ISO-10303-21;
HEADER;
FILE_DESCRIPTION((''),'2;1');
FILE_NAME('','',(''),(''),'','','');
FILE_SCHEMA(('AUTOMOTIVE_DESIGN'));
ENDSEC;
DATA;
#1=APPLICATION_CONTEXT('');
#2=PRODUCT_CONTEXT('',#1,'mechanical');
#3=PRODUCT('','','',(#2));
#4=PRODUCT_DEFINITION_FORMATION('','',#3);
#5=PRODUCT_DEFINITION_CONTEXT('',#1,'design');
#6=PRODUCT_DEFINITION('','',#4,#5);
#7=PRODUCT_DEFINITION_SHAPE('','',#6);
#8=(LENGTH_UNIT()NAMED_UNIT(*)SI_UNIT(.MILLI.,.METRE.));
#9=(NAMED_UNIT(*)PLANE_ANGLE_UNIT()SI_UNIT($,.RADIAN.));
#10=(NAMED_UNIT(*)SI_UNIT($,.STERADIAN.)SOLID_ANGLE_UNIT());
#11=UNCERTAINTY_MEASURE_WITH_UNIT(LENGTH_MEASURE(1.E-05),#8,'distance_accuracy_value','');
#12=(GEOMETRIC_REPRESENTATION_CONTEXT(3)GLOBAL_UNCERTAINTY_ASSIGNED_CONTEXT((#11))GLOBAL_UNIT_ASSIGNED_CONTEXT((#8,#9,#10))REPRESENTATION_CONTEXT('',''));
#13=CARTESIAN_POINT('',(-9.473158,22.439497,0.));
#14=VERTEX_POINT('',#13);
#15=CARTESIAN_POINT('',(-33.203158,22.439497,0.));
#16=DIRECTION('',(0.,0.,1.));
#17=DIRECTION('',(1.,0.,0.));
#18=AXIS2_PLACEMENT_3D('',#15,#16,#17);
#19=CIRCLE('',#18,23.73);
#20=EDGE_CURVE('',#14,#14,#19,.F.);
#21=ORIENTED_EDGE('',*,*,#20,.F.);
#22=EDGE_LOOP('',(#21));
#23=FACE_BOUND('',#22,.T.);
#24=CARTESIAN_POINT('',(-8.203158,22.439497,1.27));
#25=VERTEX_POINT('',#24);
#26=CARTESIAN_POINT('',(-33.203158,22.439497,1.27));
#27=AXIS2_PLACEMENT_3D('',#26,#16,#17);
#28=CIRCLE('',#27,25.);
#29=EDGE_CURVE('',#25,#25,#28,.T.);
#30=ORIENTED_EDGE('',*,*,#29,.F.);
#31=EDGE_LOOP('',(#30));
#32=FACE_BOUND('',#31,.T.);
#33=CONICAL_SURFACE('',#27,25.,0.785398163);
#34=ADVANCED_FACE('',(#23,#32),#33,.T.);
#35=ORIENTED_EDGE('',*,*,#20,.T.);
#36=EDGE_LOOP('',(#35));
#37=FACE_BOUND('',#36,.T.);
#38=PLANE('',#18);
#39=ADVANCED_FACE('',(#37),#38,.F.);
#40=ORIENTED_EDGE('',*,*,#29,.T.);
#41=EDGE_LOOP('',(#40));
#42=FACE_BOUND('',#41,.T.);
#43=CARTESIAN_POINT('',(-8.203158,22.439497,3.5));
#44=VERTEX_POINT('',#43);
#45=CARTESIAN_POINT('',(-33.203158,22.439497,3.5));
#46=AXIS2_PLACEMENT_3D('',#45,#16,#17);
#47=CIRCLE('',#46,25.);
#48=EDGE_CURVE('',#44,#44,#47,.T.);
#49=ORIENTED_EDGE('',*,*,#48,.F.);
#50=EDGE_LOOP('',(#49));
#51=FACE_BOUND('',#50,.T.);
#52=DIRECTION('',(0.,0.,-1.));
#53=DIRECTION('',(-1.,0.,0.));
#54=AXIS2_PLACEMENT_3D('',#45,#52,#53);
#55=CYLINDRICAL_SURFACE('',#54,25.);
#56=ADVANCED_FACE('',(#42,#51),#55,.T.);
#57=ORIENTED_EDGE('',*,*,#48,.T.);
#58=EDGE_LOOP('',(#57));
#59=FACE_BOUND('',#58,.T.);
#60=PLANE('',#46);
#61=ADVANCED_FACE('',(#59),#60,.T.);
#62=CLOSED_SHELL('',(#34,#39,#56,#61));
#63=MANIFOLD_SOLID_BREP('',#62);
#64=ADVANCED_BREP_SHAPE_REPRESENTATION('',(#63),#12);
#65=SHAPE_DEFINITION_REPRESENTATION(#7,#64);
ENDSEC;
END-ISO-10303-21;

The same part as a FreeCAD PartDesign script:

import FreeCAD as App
import Part
import Sketcher

V = App.Vector
Q = App.Units.Quantity


def edges_at(feature, points):
    """Names of the edges that pass closest to the given points."""
    edges = feature.Shape.Edges
    near = lambda p: min(range(len(edges)), key=lambda i: edges[i].distToShape(Part.Vertex(*p))[0])
    return sorted({f"Edge{near(p) + 1}" for p in points})

doc = App.newDocument("Part")
body = doc.addObject("PartDesign::Body", "Body")

sketch1 = body.newObject("Sketcher::SketchObject", "Sketch")
sketch1.AttachmentSupport = (doc.getObject("XY_Plane"), [""])
sketch1.MapMode = "FlatFace"
sketch1.addGeometry(Part.Circle(V(-33.203158, 22.439497, 0), V(0, 0, 1), 25), False)
sketch1.addConstraint([
    Sketcher.Constraint("Diameter", 0, Q("50 mm")),
    Sketcher.Constraint("DistanceX", 0, 3, -1, 1, Q("33.203158 mm")),
    Sketcher.Constraint("DistanceY", -1, 1, 0, 3, Q("22.439497 mm")),
])
pad1 = body.newObject("PartDesign::Pad", "Pad")
pad1.Profile = sketch1
pad1.Length = 3.5
doc.recompute()

chamfer = body.newObject("PartDesign::Chamfer", "Chamfer")
chamfer.Base = (pad1, edges_at(pad1, [(-58.203, 22.439, 0)]))
chamfer.Size = 1.27

doc.recompute()
